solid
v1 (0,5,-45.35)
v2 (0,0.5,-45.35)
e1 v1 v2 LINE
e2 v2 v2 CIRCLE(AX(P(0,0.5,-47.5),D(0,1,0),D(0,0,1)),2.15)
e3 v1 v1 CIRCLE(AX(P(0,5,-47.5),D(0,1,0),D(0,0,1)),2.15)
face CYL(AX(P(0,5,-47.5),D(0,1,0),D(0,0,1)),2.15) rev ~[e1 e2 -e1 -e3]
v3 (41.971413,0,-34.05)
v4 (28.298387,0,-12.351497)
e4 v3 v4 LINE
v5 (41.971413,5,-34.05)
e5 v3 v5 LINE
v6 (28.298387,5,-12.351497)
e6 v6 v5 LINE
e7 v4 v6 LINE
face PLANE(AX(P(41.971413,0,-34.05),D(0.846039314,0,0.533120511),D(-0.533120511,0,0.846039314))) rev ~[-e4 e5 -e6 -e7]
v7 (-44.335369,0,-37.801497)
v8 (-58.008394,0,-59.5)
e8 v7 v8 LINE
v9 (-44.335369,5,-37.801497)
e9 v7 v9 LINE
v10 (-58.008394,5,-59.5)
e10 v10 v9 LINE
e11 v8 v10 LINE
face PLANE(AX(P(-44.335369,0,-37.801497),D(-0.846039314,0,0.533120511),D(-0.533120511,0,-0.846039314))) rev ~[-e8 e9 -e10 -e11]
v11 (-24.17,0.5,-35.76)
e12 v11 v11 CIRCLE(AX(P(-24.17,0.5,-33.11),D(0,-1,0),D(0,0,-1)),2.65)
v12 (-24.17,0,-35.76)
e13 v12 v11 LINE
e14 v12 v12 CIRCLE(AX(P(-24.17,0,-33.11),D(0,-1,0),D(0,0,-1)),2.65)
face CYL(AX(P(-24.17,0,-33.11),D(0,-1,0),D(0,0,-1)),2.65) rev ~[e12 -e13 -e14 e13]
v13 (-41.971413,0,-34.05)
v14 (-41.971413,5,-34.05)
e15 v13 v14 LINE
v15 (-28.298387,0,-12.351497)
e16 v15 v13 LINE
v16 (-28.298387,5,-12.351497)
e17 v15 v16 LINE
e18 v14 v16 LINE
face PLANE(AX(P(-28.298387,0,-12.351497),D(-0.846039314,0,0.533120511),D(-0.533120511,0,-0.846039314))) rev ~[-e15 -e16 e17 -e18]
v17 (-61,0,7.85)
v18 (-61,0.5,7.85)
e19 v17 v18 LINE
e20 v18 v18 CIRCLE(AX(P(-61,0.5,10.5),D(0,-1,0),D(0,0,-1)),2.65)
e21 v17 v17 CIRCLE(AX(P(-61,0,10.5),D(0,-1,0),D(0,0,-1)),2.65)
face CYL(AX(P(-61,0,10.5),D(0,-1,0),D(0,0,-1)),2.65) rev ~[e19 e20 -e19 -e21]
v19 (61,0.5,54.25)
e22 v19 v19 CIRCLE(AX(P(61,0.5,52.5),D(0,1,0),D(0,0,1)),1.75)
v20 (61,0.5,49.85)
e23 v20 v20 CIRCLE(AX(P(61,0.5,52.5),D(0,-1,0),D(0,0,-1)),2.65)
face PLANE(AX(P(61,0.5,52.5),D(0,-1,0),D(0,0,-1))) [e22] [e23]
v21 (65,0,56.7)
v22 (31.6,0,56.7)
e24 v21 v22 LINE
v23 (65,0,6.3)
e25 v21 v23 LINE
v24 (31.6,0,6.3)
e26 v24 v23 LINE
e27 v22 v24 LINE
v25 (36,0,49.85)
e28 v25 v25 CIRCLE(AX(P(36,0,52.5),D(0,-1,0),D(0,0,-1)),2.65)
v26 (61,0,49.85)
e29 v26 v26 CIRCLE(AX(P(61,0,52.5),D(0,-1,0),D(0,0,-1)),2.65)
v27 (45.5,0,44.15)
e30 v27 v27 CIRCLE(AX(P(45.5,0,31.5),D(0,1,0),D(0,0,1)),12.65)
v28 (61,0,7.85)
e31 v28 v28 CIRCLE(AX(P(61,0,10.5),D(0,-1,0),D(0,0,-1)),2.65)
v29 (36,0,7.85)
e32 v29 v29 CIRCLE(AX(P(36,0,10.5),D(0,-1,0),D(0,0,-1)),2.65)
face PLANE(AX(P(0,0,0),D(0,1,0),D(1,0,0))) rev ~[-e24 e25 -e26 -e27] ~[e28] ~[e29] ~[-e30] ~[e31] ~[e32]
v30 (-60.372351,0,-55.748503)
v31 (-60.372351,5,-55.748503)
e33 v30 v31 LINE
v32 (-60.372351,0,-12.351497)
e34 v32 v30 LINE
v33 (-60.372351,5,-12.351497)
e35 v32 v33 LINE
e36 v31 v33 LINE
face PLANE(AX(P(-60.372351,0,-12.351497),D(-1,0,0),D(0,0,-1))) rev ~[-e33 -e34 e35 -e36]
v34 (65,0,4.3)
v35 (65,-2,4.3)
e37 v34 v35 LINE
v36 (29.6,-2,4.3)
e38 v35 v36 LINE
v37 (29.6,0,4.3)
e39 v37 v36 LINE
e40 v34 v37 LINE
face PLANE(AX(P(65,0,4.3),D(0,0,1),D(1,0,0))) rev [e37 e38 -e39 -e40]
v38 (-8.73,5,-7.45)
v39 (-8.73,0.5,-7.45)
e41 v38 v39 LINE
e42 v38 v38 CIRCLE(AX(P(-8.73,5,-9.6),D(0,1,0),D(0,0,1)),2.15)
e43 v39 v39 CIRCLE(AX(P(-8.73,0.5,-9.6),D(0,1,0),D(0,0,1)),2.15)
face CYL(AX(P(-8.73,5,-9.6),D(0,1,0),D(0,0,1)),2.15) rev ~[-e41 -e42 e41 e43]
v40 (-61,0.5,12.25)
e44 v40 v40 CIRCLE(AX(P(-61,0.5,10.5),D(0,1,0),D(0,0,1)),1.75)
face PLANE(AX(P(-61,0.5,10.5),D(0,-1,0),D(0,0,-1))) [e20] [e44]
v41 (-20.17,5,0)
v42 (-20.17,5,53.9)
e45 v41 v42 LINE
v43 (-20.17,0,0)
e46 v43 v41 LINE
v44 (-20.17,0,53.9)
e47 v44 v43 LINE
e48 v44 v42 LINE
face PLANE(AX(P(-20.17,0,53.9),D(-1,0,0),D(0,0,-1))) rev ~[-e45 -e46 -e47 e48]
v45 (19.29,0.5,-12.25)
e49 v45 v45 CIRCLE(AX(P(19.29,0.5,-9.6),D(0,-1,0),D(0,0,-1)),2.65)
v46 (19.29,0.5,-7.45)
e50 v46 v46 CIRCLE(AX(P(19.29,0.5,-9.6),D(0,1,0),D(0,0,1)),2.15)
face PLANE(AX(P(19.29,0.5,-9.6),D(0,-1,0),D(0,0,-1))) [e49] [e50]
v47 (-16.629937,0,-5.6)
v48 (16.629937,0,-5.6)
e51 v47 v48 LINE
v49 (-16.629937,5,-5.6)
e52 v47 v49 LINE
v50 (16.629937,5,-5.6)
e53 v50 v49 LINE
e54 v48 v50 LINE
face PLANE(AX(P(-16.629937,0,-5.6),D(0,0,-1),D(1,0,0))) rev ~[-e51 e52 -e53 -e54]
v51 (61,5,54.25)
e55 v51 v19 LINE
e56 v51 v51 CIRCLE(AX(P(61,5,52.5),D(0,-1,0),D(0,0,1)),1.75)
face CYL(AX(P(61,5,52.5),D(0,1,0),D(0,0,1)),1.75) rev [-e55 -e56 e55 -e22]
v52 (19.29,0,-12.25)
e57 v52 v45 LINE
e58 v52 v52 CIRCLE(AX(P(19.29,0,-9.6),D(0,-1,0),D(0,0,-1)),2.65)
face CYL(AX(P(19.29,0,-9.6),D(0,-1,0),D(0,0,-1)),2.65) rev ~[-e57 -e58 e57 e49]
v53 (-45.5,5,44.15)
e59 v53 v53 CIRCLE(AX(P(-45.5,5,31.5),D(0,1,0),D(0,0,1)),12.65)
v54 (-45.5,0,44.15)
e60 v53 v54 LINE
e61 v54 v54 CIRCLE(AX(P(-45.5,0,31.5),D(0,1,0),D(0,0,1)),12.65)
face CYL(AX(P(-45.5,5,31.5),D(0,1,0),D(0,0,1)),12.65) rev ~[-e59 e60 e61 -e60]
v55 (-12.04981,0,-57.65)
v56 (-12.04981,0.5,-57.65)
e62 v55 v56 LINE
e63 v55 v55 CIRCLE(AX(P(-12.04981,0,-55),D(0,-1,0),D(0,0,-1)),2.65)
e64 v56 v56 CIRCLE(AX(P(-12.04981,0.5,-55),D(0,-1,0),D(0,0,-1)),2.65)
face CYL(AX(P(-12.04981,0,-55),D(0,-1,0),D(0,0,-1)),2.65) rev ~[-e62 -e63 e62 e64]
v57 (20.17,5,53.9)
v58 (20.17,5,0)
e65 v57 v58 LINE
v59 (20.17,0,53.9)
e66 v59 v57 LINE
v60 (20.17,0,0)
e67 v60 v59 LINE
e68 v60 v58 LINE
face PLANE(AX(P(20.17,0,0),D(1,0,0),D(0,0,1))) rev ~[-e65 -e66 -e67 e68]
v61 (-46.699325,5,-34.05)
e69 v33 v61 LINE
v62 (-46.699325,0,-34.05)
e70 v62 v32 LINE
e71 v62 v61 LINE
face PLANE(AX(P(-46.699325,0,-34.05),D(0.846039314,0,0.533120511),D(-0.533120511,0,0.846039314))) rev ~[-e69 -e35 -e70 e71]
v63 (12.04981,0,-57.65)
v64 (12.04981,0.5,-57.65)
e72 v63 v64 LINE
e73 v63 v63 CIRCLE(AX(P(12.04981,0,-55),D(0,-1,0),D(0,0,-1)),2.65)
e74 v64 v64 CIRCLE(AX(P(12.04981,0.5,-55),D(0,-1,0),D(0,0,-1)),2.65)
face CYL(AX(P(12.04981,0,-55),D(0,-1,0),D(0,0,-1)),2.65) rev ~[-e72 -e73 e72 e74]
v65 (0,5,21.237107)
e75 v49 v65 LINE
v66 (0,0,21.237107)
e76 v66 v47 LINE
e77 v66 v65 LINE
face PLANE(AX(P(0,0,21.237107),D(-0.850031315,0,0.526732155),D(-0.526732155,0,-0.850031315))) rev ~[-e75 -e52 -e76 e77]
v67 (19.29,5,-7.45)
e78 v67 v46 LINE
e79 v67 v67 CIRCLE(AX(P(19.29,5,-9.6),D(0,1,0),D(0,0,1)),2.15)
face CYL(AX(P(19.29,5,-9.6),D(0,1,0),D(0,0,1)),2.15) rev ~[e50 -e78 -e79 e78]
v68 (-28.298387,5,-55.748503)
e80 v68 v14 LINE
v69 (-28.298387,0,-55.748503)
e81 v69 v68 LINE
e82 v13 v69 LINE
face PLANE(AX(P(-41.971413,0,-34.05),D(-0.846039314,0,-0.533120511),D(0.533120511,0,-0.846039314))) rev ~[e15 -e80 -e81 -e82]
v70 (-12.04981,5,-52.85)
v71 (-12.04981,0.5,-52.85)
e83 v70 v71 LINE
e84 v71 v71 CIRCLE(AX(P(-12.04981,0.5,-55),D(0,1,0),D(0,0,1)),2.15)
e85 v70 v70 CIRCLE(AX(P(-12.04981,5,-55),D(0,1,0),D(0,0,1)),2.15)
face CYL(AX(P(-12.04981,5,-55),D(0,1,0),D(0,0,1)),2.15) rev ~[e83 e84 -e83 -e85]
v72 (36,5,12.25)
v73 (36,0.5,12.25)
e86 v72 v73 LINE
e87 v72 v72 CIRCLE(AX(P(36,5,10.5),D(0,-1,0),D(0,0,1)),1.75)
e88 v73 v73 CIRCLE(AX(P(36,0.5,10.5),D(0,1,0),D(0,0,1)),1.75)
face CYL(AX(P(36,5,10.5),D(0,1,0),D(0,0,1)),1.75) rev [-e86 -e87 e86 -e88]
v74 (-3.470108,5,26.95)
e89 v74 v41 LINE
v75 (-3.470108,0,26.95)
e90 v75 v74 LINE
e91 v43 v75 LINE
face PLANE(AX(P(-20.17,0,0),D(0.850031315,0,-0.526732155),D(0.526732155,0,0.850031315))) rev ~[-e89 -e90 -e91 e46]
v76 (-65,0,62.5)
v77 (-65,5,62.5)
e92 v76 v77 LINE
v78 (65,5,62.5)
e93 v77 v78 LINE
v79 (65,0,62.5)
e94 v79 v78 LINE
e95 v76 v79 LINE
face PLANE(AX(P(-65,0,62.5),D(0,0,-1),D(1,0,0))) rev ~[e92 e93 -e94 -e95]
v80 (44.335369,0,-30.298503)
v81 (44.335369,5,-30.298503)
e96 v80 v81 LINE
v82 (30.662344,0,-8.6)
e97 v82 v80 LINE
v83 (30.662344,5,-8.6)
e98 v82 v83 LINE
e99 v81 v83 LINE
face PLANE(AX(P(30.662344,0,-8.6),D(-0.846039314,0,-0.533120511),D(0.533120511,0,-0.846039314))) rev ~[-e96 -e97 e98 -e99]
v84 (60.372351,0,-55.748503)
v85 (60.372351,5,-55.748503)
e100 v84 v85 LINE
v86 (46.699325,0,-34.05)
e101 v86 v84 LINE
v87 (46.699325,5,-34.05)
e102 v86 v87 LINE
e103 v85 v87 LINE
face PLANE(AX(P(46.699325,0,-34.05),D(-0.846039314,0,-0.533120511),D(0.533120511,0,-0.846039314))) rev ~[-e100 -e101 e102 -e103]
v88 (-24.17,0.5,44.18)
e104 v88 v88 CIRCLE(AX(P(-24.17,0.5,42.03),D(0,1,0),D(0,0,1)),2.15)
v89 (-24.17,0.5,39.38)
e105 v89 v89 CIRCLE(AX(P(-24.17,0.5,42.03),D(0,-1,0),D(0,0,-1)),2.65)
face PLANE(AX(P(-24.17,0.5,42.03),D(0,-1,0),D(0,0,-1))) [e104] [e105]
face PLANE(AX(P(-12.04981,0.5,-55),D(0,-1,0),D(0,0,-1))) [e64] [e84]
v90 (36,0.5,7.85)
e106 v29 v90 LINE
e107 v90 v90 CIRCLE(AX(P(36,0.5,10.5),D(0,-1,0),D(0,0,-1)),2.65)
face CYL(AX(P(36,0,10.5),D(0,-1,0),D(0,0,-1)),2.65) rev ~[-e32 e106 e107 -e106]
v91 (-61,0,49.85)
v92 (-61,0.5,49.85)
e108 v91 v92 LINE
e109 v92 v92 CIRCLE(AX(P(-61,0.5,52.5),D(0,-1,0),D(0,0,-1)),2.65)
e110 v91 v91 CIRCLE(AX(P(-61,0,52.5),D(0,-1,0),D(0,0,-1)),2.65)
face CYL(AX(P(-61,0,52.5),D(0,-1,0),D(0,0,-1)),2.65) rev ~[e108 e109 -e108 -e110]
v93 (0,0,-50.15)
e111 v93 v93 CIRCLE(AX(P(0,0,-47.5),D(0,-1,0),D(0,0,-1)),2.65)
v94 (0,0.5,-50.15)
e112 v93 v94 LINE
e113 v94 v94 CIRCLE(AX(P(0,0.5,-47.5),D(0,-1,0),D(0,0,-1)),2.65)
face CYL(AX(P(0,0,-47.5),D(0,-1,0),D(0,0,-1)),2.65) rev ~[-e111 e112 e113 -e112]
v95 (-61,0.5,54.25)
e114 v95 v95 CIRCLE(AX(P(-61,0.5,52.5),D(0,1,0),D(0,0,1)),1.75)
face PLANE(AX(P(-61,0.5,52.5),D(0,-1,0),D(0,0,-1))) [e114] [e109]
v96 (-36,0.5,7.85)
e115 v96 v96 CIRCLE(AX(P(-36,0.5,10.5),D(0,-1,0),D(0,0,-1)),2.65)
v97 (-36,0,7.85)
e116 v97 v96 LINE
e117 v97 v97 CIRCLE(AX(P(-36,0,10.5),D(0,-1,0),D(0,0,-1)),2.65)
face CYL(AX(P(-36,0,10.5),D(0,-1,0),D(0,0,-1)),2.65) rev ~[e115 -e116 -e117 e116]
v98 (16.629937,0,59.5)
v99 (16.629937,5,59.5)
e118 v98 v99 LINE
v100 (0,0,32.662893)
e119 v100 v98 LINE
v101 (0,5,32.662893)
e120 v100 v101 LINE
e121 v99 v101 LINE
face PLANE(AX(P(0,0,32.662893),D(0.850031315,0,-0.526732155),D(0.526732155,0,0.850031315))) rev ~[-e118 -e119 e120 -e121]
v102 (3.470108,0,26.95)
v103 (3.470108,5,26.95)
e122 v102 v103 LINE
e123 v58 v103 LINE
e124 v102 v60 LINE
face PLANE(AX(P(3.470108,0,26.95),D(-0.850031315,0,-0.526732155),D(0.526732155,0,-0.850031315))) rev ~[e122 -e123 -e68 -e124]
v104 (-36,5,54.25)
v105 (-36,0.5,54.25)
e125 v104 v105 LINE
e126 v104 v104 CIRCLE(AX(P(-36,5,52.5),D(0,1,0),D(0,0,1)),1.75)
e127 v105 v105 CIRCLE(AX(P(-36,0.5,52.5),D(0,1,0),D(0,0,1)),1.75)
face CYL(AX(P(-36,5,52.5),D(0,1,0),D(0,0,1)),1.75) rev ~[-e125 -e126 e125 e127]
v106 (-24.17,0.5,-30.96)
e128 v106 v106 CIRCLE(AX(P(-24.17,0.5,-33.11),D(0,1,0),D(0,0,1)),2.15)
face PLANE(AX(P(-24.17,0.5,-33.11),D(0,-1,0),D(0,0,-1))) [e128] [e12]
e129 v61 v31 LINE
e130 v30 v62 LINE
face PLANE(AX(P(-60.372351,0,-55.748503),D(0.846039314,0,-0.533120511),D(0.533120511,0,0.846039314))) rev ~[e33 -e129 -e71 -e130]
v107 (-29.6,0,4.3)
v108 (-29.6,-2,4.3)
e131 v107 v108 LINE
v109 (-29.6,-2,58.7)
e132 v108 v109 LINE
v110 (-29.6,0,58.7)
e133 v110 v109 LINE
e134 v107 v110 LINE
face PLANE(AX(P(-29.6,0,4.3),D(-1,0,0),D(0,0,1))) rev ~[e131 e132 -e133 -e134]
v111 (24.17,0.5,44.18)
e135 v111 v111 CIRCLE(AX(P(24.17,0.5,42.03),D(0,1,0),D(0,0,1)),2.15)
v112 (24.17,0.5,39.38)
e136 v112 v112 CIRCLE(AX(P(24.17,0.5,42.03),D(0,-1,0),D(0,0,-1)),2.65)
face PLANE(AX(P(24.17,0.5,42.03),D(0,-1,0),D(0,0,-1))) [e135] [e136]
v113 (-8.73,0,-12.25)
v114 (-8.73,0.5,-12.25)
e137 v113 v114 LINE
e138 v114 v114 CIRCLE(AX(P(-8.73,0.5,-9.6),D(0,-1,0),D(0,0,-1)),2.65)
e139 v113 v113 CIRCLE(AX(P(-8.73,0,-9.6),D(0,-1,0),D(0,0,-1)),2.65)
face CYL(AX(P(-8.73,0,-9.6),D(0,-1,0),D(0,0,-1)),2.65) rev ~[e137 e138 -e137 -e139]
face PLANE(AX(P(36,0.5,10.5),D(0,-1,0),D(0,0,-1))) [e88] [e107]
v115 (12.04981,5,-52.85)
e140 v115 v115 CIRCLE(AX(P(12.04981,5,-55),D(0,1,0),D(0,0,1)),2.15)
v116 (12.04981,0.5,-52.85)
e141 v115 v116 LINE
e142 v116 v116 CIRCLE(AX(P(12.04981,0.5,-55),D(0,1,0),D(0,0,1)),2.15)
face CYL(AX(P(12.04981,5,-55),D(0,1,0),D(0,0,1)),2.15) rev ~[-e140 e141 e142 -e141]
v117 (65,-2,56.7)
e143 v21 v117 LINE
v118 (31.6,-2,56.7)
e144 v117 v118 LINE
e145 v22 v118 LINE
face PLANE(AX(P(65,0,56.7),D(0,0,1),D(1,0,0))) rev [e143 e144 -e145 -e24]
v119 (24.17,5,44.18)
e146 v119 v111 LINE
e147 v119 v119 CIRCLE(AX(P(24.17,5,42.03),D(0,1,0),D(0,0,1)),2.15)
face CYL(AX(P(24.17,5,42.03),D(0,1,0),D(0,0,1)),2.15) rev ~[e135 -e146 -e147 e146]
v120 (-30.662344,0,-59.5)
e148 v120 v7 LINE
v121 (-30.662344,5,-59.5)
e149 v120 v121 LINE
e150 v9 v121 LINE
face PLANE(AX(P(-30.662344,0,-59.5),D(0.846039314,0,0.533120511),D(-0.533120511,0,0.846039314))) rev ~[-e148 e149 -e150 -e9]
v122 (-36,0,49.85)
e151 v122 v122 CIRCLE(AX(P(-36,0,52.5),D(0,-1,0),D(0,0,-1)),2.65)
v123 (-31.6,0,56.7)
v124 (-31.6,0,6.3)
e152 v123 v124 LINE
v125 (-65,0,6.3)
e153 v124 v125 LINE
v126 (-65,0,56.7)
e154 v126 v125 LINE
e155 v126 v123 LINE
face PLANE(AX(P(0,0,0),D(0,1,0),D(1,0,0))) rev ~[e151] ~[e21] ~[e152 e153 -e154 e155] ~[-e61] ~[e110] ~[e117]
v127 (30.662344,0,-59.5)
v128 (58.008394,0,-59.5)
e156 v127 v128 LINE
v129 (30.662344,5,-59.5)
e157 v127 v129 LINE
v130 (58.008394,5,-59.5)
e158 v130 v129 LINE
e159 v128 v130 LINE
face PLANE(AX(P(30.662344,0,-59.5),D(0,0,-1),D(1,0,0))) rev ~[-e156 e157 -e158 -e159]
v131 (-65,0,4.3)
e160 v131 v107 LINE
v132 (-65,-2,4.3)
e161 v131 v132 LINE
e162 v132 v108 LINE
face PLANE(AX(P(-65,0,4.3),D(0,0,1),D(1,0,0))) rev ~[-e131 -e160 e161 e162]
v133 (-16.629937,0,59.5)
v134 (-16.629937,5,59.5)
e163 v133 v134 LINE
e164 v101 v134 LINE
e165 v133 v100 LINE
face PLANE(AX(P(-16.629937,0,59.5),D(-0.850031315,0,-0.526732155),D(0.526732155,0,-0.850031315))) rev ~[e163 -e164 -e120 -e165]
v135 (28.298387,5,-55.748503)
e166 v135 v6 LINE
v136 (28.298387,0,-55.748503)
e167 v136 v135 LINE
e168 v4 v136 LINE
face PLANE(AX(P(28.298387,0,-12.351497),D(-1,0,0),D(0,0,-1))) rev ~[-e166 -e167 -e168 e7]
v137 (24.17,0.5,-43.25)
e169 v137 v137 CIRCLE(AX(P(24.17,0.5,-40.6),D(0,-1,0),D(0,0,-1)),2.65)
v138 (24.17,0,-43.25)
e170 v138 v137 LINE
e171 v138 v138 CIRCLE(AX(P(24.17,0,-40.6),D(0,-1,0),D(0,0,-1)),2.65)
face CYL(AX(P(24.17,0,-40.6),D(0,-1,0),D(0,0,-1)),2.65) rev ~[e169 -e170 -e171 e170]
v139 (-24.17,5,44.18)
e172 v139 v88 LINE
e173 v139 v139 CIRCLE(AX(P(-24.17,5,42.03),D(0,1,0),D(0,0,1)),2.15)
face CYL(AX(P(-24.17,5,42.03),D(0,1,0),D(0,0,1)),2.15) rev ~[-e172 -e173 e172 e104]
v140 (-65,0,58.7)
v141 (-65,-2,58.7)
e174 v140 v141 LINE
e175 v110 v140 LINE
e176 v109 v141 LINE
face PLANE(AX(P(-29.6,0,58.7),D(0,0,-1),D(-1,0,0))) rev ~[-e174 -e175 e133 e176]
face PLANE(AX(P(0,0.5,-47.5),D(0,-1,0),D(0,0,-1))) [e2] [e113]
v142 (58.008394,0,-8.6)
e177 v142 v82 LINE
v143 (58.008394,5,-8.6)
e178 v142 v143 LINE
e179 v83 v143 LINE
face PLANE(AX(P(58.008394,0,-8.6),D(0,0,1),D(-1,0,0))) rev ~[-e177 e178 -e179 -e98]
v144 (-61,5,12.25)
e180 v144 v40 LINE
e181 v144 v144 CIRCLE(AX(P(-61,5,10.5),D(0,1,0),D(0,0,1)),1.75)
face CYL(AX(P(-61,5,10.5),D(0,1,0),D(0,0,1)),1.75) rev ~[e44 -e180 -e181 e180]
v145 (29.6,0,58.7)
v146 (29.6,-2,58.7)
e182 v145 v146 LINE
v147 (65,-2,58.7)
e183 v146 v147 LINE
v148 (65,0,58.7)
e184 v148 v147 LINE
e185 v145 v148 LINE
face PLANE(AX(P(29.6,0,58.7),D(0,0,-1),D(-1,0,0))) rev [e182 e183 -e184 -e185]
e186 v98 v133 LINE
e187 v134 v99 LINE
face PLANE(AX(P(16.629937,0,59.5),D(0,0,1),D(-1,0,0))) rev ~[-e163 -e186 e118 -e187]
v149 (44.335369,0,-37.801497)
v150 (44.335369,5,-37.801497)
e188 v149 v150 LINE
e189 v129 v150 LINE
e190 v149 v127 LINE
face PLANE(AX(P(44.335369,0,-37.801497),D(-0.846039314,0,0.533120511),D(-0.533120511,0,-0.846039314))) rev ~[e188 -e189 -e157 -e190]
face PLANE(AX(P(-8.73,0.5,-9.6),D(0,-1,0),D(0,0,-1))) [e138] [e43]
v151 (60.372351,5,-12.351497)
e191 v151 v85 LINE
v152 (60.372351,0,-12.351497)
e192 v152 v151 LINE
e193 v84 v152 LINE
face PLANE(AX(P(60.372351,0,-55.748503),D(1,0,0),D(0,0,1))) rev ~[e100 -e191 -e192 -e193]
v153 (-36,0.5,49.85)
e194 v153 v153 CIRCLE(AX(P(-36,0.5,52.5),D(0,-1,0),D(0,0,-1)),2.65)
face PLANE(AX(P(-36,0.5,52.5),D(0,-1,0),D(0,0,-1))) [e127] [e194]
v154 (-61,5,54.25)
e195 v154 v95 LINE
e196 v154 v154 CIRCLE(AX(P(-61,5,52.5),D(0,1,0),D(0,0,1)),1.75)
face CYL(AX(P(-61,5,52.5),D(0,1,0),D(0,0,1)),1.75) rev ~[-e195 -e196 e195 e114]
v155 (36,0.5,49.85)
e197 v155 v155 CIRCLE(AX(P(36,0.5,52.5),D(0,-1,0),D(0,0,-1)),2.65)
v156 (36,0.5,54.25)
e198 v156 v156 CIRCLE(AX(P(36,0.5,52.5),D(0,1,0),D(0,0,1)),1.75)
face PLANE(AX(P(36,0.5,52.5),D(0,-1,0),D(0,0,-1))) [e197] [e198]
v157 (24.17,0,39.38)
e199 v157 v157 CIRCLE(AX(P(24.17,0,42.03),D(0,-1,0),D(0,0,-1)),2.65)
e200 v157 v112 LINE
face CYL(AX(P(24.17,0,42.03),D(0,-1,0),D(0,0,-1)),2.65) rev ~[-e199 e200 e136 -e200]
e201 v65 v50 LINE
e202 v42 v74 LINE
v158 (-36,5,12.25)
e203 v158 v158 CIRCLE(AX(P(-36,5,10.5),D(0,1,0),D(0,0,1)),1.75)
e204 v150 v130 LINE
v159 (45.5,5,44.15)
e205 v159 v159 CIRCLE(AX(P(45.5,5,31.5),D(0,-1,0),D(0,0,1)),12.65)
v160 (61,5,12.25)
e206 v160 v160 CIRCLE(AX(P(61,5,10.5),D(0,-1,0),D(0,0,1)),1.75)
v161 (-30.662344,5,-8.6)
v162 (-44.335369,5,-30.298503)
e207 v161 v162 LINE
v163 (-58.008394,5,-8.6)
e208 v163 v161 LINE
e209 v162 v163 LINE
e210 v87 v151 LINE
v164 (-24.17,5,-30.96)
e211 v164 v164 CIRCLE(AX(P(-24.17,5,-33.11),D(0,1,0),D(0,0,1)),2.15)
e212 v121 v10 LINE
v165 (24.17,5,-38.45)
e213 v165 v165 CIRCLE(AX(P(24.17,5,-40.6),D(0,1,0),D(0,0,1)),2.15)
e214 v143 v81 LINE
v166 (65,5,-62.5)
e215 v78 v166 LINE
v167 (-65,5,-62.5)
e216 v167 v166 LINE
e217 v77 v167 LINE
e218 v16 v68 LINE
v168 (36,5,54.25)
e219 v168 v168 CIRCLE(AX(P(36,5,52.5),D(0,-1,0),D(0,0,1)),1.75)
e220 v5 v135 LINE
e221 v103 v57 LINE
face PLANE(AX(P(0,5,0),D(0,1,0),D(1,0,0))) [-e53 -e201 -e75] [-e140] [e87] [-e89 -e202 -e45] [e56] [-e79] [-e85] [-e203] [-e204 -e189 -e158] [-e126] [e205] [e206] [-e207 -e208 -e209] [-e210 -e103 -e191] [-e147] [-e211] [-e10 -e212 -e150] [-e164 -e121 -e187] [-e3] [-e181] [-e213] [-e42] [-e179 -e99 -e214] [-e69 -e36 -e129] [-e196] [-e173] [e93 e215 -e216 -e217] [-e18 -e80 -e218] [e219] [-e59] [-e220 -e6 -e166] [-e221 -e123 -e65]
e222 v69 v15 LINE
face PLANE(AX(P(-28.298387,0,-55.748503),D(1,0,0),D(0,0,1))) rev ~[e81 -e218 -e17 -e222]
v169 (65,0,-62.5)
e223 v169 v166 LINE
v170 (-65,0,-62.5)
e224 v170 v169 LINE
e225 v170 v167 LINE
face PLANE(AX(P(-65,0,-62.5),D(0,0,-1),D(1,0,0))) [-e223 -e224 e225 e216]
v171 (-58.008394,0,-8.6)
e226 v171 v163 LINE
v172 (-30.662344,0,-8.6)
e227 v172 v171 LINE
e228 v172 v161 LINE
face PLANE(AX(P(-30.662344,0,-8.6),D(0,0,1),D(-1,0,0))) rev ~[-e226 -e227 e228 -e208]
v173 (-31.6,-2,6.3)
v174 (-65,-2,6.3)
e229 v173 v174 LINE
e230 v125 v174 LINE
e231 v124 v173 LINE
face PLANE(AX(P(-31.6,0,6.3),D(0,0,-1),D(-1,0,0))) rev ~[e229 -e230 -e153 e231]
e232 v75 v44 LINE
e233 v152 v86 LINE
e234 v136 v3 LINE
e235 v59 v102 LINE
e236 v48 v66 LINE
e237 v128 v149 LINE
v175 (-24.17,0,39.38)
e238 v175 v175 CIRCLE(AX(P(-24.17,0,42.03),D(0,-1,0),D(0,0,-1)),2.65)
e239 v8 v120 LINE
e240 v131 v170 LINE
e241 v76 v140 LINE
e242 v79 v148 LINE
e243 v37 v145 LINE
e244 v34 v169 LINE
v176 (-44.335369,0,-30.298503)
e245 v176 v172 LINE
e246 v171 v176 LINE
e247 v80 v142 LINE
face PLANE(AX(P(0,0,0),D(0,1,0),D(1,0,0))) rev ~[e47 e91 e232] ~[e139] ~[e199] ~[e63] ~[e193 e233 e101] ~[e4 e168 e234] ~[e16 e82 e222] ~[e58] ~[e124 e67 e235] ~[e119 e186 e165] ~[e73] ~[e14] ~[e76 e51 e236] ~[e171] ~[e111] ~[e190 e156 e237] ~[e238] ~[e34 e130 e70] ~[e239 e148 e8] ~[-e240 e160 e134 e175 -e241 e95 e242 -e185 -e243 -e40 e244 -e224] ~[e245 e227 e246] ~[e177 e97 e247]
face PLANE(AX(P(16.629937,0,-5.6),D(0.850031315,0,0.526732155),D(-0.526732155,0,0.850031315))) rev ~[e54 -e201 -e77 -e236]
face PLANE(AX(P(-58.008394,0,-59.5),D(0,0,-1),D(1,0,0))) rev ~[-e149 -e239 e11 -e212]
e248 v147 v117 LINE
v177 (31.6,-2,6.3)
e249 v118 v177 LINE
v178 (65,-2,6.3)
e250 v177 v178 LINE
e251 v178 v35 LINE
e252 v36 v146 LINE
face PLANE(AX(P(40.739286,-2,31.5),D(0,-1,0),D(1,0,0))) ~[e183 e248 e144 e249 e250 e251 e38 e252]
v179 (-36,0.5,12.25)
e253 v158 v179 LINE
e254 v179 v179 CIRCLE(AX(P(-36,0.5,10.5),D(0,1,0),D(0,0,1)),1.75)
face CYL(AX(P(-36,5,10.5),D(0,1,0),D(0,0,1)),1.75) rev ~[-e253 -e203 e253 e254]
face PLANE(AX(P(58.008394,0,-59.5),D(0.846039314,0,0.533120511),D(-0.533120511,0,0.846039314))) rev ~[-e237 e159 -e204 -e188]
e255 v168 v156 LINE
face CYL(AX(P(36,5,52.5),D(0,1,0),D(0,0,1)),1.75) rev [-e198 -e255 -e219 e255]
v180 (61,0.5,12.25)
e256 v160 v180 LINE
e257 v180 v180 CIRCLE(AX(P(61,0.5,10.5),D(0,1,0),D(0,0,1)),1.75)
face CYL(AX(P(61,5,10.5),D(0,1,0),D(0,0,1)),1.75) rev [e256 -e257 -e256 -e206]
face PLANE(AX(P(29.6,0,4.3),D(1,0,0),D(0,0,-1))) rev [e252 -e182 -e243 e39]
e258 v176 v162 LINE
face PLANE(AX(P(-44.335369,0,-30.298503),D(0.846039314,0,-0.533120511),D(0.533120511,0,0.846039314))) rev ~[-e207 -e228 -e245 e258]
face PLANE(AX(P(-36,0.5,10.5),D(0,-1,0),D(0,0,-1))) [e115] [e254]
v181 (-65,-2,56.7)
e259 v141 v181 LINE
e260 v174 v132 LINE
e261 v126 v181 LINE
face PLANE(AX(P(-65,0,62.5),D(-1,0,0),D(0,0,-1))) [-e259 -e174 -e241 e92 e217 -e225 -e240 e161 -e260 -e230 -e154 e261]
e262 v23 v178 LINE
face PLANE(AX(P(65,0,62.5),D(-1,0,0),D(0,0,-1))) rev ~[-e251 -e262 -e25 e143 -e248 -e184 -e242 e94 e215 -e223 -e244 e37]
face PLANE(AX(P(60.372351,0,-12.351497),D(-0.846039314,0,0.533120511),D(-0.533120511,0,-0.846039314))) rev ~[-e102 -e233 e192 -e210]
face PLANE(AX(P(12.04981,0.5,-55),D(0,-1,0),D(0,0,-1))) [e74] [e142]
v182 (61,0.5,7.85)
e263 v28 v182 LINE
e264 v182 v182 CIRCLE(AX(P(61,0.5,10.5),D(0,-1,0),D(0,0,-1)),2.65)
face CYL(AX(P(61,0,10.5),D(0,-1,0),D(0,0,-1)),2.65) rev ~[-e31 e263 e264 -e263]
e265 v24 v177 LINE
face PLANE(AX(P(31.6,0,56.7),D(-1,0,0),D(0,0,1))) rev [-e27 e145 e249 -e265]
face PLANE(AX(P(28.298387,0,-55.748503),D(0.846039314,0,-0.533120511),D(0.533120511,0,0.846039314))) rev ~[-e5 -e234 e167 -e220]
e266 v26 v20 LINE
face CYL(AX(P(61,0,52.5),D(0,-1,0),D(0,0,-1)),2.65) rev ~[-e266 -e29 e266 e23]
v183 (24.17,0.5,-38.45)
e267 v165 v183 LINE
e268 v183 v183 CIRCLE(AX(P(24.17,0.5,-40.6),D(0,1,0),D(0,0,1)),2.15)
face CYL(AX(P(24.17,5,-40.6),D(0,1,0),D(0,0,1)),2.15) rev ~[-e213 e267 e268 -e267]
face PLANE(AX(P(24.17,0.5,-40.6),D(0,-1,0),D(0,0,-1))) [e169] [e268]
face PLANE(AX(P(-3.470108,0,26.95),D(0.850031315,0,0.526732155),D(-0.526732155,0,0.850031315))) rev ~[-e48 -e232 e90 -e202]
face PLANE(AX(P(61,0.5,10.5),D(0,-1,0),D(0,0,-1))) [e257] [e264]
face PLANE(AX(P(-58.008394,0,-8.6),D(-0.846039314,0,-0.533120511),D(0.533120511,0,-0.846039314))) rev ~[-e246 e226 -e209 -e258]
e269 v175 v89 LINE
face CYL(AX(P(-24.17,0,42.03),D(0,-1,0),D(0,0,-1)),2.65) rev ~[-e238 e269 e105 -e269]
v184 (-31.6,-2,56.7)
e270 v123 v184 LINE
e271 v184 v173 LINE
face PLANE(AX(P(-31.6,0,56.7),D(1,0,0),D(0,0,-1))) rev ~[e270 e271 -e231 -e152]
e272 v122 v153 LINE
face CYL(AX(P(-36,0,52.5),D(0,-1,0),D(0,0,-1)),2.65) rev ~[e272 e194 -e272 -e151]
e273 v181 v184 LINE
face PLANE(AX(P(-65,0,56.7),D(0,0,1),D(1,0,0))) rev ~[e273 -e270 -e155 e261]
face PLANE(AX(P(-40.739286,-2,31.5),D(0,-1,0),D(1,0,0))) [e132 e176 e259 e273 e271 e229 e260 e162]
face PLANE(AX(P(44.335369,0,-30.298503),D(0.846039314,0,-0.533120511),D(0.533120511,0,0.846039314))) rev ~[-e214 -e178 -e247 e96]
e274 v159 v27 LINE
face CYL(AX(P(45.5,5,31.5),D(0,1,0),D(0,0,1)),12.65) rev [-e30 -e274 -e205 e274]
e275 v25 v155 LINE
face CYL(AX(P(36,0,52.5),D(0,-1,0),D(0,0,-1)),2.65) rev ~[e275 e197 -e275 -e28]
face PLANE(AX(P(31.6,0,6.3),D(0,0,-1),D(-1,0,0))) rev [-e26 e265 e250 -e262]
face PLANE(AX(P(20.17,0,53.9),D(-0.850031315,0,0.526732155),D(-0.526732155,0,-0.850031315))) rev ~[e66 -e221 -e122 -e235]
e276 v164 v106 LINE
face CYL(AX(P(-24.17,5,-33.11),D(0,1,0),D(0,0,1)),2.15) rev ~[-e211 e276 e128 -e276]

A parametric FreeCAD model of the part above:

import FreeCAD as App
import Part
import Sketcher

doc = App.newDocument("Part")
body = doc.addObject("PartDesign::Body", "Body")

sketch1 = doc.addObject("Sketcher::SketchObject", "Sketch")
body.addObject(sketch1)
sketch1.AttachmentSupport = (doc.XZ_Plane, [""])
sketch1.MapMode = "FlatFace"
sketch1.addGeometry([
    Part.LineSegment(App.Vector(-65, -62, 0), App.Vector(-65, 62, 0)),
    Part.LineSegment(App.Vector(-65, 62, 0), App.Vector(65, 62, 0)),
    Part.LineSegment(App.Vector(65, 62, 0), App.Vector(65, -62, 0)),
    Part.LineSegment(App.Vector(65, -62, 0), App.Vector(-65, -62, 0)),
], False)
sketch1.addConstraint([
    Sketcher.Constraint("Coincident", 0, 2, 1, 1),
    Sketcher.Constraint("Coincident", 1, 2, 2, 1),
    Sketcher.Constraint("Coincident", 2, 2, 3, 1),
    Sketcher.Constraint("Coincident", 3, 2, 0, 1),
    Sketcher.Constraint("Vertical", 0),
    Sketcher.Constraint("Horizontal", 1),
    Sketcher.Constraint("Vertical", 2),
    Sketcher.Constraint("Horizontal", 3),
    Sketcher.Constraint("Symmetric", 0, 2, 2, 2, -1, 1),
    Sketcher.Constraint("DistanceX", 1, 1, 1, 2, 130.0),
    Sketcher.Constraint("DistanceY", 0, 1, 0, 2, 125.0),
])
pad1 = doc.addObject("PartDesign::Pad", "Pad")
body.addObject(pad1)
pad1.Profile = sketch1
pad1.Length = 5
pad1.Reversed = True

sketch2 = doc.addObject("Sketcher::SketchObject", "Sketch001")
body.addObject(sketch2)
sketch2.AttachmentSupport = (doc.XZ_Plane, [""])
sketch2.MapMode = "FlatFace"
sketch2.AttachmentOffset = App.Placement(App.Vector(0, 0, -5), App.Rotation())
sketch2.addGeometry([
    Part.Circle(App.Vector(-61, 52.5, 0), App.Vector(0, 0, 1), 1.8),
    Part.Circle(App.Vector(-36, 52.5, 0), App.Vector(0, 0, 1), 1.8),
    Part.Circle(App.Vector(-36, 10.5, 0), App.Vector(0, 0, 1), 1.8),
    Part.Circle(App.Vector(-61, 10.5, 0), App.Vector(0, 0, 1), 1.8),
    Part.Circle(App.Vector(-45.5, 31.5, 0), App.Vector(0, 0, 1), 12.7),
], False)
sketch2.addConstraint([
    Sketcher.Constraint("Equal", 0, 1),
    Sketcher.Constraint("Equal", 1, 2),
    Sketcher.Constraint("Equal", 2, 3),
    Sketcher.Constraint("Horizontal", 0, 3, 1, 3),
    Sketcher.Constraint("Horizontal", 2, 3, 3, 3),
    Sketcher.Constraint("Vertical", 1, 3, 2, 3),
    Sketcher.Constraint("Vertical", 0, 3, 3, 3),
    Sketcher.Constraint("Diameter", 0, 3.5),
    Sketcher.Constraint("Diameter", 4, 25.3),
    Sketcher.Constraint("DistanceX", 0, 3, -1, 1, 61.0),
    Sketcher.Constraint("DistanceX", 1, 3, -1, 1, 36.0),
    Sketcher.Constraint("DistanceY", 2, 3, 1, 3, 42.0),
    Sketcher.Constraint("DistanceY", 4, 3, 1, 3, 21.0),
    Sketcher.Constraint("DistanceY", -1, 1, 0, 3, 52.5),
    Sketcher.Constraint("DistanceX", 4, 3, -1, 1, 45.5),
])
pocket1 = doc.addObject("PartDesign::Pocket", "Pocket")
body.addObject(pocket1)
pocket1.Profile = sketch2
pocket1.Length = 10
pocket1.Reversed = True
doc.recompute()

mirrored = doc.addObject("PartDesign::Mirrored", "Mirrored")
body.addObject(mirrored)
mirrored.Originals = [pocket1]
mirrored.MirrorPlane = (doc.YZ_Plane, [""])
body.Tip = mirrored

sketch3 = doc.addObject("Sketcher::SketchObject", "Sketch002")
body.addObject(sketch3)
sketch3.AttachmentSupport = (doc.XZ_Plane, [""])
sketch3.MapMode = "FlatFace"
sketch3.AttachmentOffset = App.Placement(App.Vector(0, 0, -5), App.Rotation())
sketch3.addGeometry([
    Part.Circle(App.Vector(-24.2, 42, 0), App.Vector(0, 0, 1), 2.1),
    Part.Circle(App.Vector(24.2, 42, 0), App.Vector(0, 0, 1), 2.1),
    Part.Circle(App.Vector(-8.7, -9.6, 0), App.Vector(0, 0, 1), 2.1),
    Part.Circle(App.Vector(19.3, -9.6, 0), App.Vector(0, 0, 1), 2.1),
    Part.Circle(App.Vector(-24.2, -33.1, 0), App.Vector(0, 0, 1), 2.1),
    Part.Circle(App.Vector(24.2, -40.6, 0), App.Vector(0, 0, 1), 2.1),
], False)
sketch3.addConstraint([
    Sketcher.Constraint("Equal", 0, 1),
    Sketcher.Constraint("Equal", 1, 2),
    Sketcher.Constraint("Equal", 2, 3),
    Sketcher.Constraint("Equal", 3, 4),
    Sketcher.Constraint("Equal", 4, 5),
    Sketcher.Constraint("Symmetric", 0, 3, 1, 3, -2),
    Sketcher.Constraint("Horizontal", 2, 3, 3, 3),
    Sketcher.Constraint("Vertical", 0, 3, 4, 3),
    Sketcher.Constraint("Vertical", 1, 3, 5, 3),
    Sketcher.Constraint("Diameter", 0, 4.3),
    Sketcher.Constraint("DistanceY", 5, 3, 3, 3, 31.0),
    Sketcher.Constraint("DistanceY", 2, 3, -1, 1, 9.6),
    Sketcher.Constraint("DistanceX", 2, 3, 1, 3, 32.9),
    Sketcher.Constraint("DistanceX", 0, 3, -1, 1, 24.17),
    Sketcher.Constraint("DistanceY", -1, 1, 0, 3, 42.03),
    Sketcher.Constraint("DistanceX", -1, 1, 3, 3, 19.29),
    Sketcher.Constraint("DistanceY", 4, 3, -1, 1, 33.11),
])
pocket2 = doc.addObject("PartDesign::Pocket", "Pocket001")
body.addObject(pocket2)
pocket2.Profile = sketch3
pocket2.Length = 10
pocket2.Reversed = True

sketch4 = doc.addObject("Sketcher::SketchObject", "Sketch003")
body.addObject(sketch4)
sketch4.AttachmentSupport = (doc.XZ_Plane, [""])
sketch4.MapMode = "FlatFace"
sketch4.AttachmentOffset = App.Placement(App.Vector(0, 0, -5), App.Rotation())
sketch4.addGeometry([
    Part.Circle(App.Vector(0, -47.5, 0), App.Vector(0, 0, 1), 2.1),
    Part.Circle(App.Vector(12, -55, 0), App.Vector(0, 0, 1), 2.1),
    Part.Circle(App.Vector(-12, -55, 0), App.Vector(0, 0, 1), 2.1),
], False)
sketch4.addConstraint([
    Sketcher.Constraint("Equal", 0, 1),
    Sketcher.Constraint("Equal", 1, 2),
    Sketcher.Constraint("Symmetric", 1, 3, 2, 3, -2),
    Sketcher.Constraint("PointOnObject", 0, 3, -2),
    Sketcher.Constraint("Diameter", 0, 4.3),
    Sketcher.Constraint("DistanceY", 1, 3, -1, 1, 55.0),
    Sketcher.Constraint("DistanceY", 0, 3, -1, 1, 47.5),
    Sketcher.Constraint("DistanceX", -1, 1, 1, 3, 12.04981),
])
pocket3 = doc.addObject("PartDesign::Pocket", "Pocket002")
body.addObject(pocket3)
pocket3.Profile = sketch4
pocket3.Length = 10
pocket3.Reversed = True

sketch5 = doc.addObject("Sketcher::SketchObject", "Sketch004")
body.addObject(sketch5)
sketch5.AttachmentSupport = (doc.XZ_Plane, [""])
sketch5.MapMode = "FlatFace"
sketch5.addGeometry([
    Part.LineSegment(App.Vector(-65, 58.7, 0), App.Vector(-65, 56.7, 0)),
    Part.LineSegment(App.Vector(-65, 56.7, 0), App.Vector(-31.6, 56.7, 0)),
    Part.LineSegment(App.Vector(-31.6, 56.7, 0), App.Vector(-31.6, 6.3, 0)),
    Part.LineSegment(App.Vector(-31.6, 6.3, 0), App.Vector(-65, 6.3, 0)),
    Part.LineSegment(App.Vector(-65, 6.3, 0), App.Vector(-65, 4.3, 0)),
    Part.LineSegment(App.Vector(-65, 4.3, 0), App.Vector(-29.6, 4.3, 0)),
    Part.LineSegment(App.Vector(-29.6, 4.3, 0), App.Vector(-29.6, 58.7, 0)),
    Part.LineSegment(App.Vector(-29.6, 58.7, 0), App.Vector(-65, 58.7, 0)),
], False)
sketch5.addConstraint([
    Sketcher.Constraint("Coincident", 0, 2, 1, 1),
    Sketcher.Constraint("Coincident", 1, 2, 2, 1),
    Sketcher.Constraint("Coincident", 2, 2, 3, 1),
    Sketcher.Constraint("Coincident", 3, 2, 4, 1),
    Sketcher.Constraint("Coincident", 4, 2, 5, 1),
    Sketcher.Constraint("Coincident", 5, 2, 6, 1),
    Sketcher.Constraint("Coincident", 6, 2, 7, 1),
    Sketcher.Constraint("Coincident", 7, 2, 0, 1),
    Sketcher.Constraint("Vertical", 0),
    Sketcher.Constraint("Horizontal", 1),
    Sketcher.Constraint("Vertical", 2),
    Sketcher.Constraint("Horizontal", 3),
    Sketcher.Constraint("Vertical", 4),
    Sketcher.Constraint("Horizontal", 5),
    Sketcher.Constraint("Vertical", 6),
    Sketcher.Constraint("Horizontal", 7),
    Sketcher.Constraint("Vertical", 0, 2, 3, 2),
    Sketcher.Constraint("Equal", 0, 4),
    Sketcher.Constraint("DistanceY", 0, 2, 0, 1, 2.0),
    Sketcher.Constraint("DistanceX", 1, 1, 1, 2, 33.4),
    Sketcher.Constraint("DistanceX", 5, 1, 5, 2, 35.4),
    Sketcher.Constraint("DistanceY", 2, 2, 2, 1, 50.4),
    Sketcher.Constraint("DistanceX", 0, 2, -1, 1, 65.0),
    Sketcher.Constraint("DistanceY", -1, 1, 0, 2, 56.7),
])
pad2 = doc.addObject("PartDesign::Pad", "Pad001")
body.addObject(pad2)
pad2.Profile = sketch5
pad2.Length = 2
doc.recompute()

mirrored2 = doc.addObject("PartDesign::Mirrored", "Mirrored001")
body.addObject(mirrored2)
mirrored2.Originals = [pad2]
mirrored2.MirrorPlane = (doc.YZ_Plane, [""])
body.Tip = mirrored2

sketch6 = doc.addObject("Sketcher::SketchObject", "Sketch005")
body.addObject(sketch6)
sketch6.AttachmentSupport = (doc.XZ_Plane, [""])
sketch6.MapMode = "FlatFace"
sketch6.addGeometry([
    Part.Circle(App.Vector(-12, -55, 0), App.Vector(0, 0, 1), 2.6),
    Part.Circle(App.Vector(12, -55, 0), App.Vector(0, 0, 1), 2.6),
    Part.Circle(App.Vector(0, -47.5, 0), App.Vector(0, 0, 1), 2.6),
    Part.Circle(App.Vector(24.2, -40.6, 0), App.Vector(0, 0, 1), 2.6),
    Part.Circle(App.Vector(-24.2, -33.1, 0), App.Vector(0, 0, 1), 2.6),
    Part.Circle(App.Vector(-8.7, -9.6, 0), App.Vector(0, 0, 1), 2.6),
    Part.Circle(App.Vector(19.3, -9.6, 0), App.Vector(0, 0, 1), 2.6),
    Part.Circle(App.Vector(-61, 10.5, 0), App.Vector(0, 0, 1), 2.6),
    Part.Circle(App.Vector(-61, 52.5, 0), App.Vector(0, 0, 1), 2.6),
    Part.Circle(App.Vector(-36, 52.5, 0), App.Vector(0, 0, 1), 2.6),
    Part.Circle(App.Vector(-36, 10.5, 0), App.Vector(0, 0, 1), 2.6),
    Part.Circle(App.Vector(-24.2, 42, 0), App.Vector(0, 0, 1), 2.6),
    Part.Circle(App.Vector(24.2, 42, 0), App.Vector(0, 0, 1), 2.6),
    Part.Circle(App.Vector(36, 52.5, 0), App.Vector(0, 0, 1), 2.6),
    Part.Circle(App.Vector(36, 10.5, 0), App.Vector(0, 0, 1), 2.6),
    Part.Circle(App.Vector(61, 10.5, 0), App.Vector(0, 0, 1), 2.6),
    Part.Circle(App.Vector(61, 52.5, 0), App.Vector(0, 0, 1), 2.6),
], False)
sketch6.addConstraint([
    Sketcher.Constraint("Equal", 0, 1),
    Sketcher.Constraint("Equal", 1, 2),
    Sketcher.Constraint("Equal", 2, 3),
    Sketcher.Constraint("Equal", 3, 4),
    Sketcher.Constraint("Equal", 4, 5),
    Sketcher.Constraint("Equal", 5, 6),
    Sketcher.Constraint("Equal", 6, 7),
    Sketcher.Constraint("Equal", 7, 8),
    Sketcher.Constraint("Equal", 8, 9),
    Sketcher.Constraint("Equal", 9, 10),
    Sketcher.Constraint("Equal", 10, 11),
    Sketcher.Constraint("Equal", 11, 12),
    Sketcher.Constraint("Equal", 12, 13),
    Sketcher.Constraint("Equal", 13, 14),
    Sketcher.Constraint("Equal", 14, 15),
    Sketcher.Constraint("Equal", 15, 16),
    Sketcher.Constraint("Symmetric", 0, 3, 1, 3, -2),
    Sketcher.Constraint("Symmetric", 11, 3, 12, 3, -2),
    Sketcher.Constraint("Symmetric", 9, 3, 13, 3, -2),
    Sketcher.Constraint("Symmetric", 10, 3, 14, 3, -2),
    Sketcher.Constraint("Symmetric", 7, 3, 15, 3, -2),
    Sketcher.Constraint("Symmetric", 8, 3, 16, 3, -2),
    Sketcher.Constraint("PointOnObject", 2, 3, -2),
    Sketcher.Constraint("Horizontal", 5, 3, 6, 3),
    Sketcher.Constraint("Horizontal", 8, 3, 9, 3),
    Sketcher.Constraint("Horizontal", 7, 3, 10, 3),
    Sketcher.Constraint("Vertical", 7, 3, 8, 3),
    Sketcher.Constraint("Vertical", 9, 3, 10, 3),
    Sketcher.Constraint("Vertical", 4, 3, 11, 3),
    Sketcher.Constraint("Vertical", 3, 3, 12, 3),
    Sketcher.Constraint("Diameter", 0, 5.3),
    Sketcher.Constraint("DistanceY", 0, 3, -1, 1, 55.0),
    Sketcher.Constraint("DistanceX", 7, 3, -1, 1, 61.0),
    Sketcher.Constraint("DistanceX", 9, 3, -1, 1, 36.0),
    Sketcher.Constraint("DistanceY", 3, 3, 5, 3, 31.0),
    Sketcher.Constraint("DistanceY", 2, 3, 7, 3, 58.0),
    Sketcher.Constraint("DistanceY", 7, 3, 8, 3, 42.0),
    Sketcher.Constraint("DistanceY", 2, 3, -1, 1, 47.5),
    Sketcher.Constraint("DistanceY", 3, 3, -1, 1, 40.6),
    Sketcher.Constraint("DistanceX", 5, 3, 3, 3, 32.9),
    Sketcher.Constraint("DistanceX", -1, 1, 3, 3, 24.17),
    Sketcher.Constraint("DistanceY", 4, 3, -1, 1, 33.11),
    Sketcher.Constraint("DistanceX", -1, 1, 6, 3, 19.29),
    Sketcher.Constraint("DistanceY", -1, 1, 11, 3, 42.03),
    Sketcher.Constraint("DistanceX", 0, 3, -1, 1, 12.04981),
])
pocket4 = doc.addObject("PartDesign::Pocket", "Pocket003")
body.addObject(pocket4)
pocket4.Profile = sketch6
pocket4.Length = 0.5

sketch7 = doc.addObject("Sketcher::SketchObject", "Sketch006")
body.addObject(sketch7)
sketch7.AttachmentSupport = (doc.XZ_Plane, [""])
sketch7.MapMode = "FlatFace"
sketch7.addGeometry([
    Part.LineSegment(App.Vector(-3, 27, 0), App.Vector(-20, 54, 0)),
    Part.LineSegment(App.Vector(-20, 54, 0), App.Vector(-20, 0, 0)),
    Part.LineSegment(App.Vector(-20, 0, 0), App.Vector(-3, 27, 0)),
    Part.LineSegment(App.Vector(17, 60, 0), App.Vector(-17, 60, 0)),
    Part.LineSegment(App.Vector(-17, 60, 0), App.Vector(0, 33, 0)),
    Part.LineSegment(App.Vector(0, 33, 0), App.Vector(17, 60, 0)),
    Part.LineSegment(App.Vector(20, 0, 0), App.Vector(20, 54, 0)),
    Part.LineSegment(App.Vector(20, 54, 0), App.Vector(3, 27, 0)),
    Part.LineSegment(App.Vector(3, 27, 0), App.Vector(20, 0, 0)),
    Part.LineSegment(App.Vector(0, 21, 0), App.Vector(-17, -6, 0)),
    Part.LineSegment(App.Vector(-17, -6, 0), App.Vector(17, -6, 0)),
    Part.LineSegment(App.Vector(17, -6, 0), App.Vector(0, 21, 0)),
], False)
sketch7.addConstraint([
    Sketcher.Constraint("Coincident", 0, 2, 1, 1),
    Sketcher.Constraint("Coincident", 1, 2, 2, 1),
    Sketcher.Constraint("Coincident", 2, 2, 0, 1),
    Sketcher.Constraint("Coincident", 3, 2, 4, 1),
    Sketcher.Constraint("Coincident", 4, 2, 5, 1),
    Sketcher.Constraint("Coincident", 5, 2, 3, 1),
    Sketcher.Constraint("Coincident", 6, 2, 7, 1),
    Sketcher.Constraint("Coincident", 7, 2, 8, 1),
    Sketcher.Constraint("Coincident", 8, 2, 6, 1),
    Sketcher.Constraint("Coincident", 9, 2, 10, 1),
    Sketcher.Constraint("Coincident", 10, 2, 11, 1),
    Sketcher.Constraint("Coincident", 11, 2, 9, 1),
    Sketcher.Constraint("Vertical", 1),
    Sketcher.Constraint("Horizontal", 3),
    Sketcher.Constraint("Vertical", 6),
    Sketcher.Constraint("Horizontal", 10),
    Sketcher.Constraint("Symmetric", 1, 2, 8, 2, -1, 1),
    Sketcher.Constraint("Symmetric", 2, 2, 7, 2, -2),
    Sketcher.Constraint("PointOnObject", 1, 2, -1),
    Sketcher.Constraint("PointOnObject", 4, 2, -2),
    Sketcher.Constraint("PointOnObject", 11, 2, -2),
    Sketcher.Constraint("Parallel", 0, 4),
    Sketcher.Constraint("Parallel", 2, 5),
    Sketcher.Constraint("Parallel", 5, 7),
    Sketcher.Constraint("Parallel", 4, 8),
    Sketcher.Constraint("Parallel", 7, 9),
    Sketcher.Constraint("Parallel", 8, 11),
    Sketcher.Constraint("Vertical", 3, 2, 9, 2),
    Sketcher.Constraint("DistanceY", 1, 2, 1, 1, 53.9),
    Sketcher.Constraint("DistanceY", -1, 1, 3, 2, 59.5),
    Sketcher.Constraint("DistanceY", 9, 2, -1, 1, 5.6),
    Sketcher.Constraint("DistanceX", 0, 2, -1, 1, 20.17),
    Sketcher.Constraint("DistanceX", 3, 2, 3, 1, 33.259874),
    Sketcher.Constraint("DistanceX", 3, 2, 2, 2, 13.15983),
])
pocket5 = doc.addObject("PartDesign::Pocket", "Pocket004")
body.addObject(pocket5)
pocket5.Profile = sketch7
pocket5.Type = "ThroughAll"

sketch8 = doc.addObject("Sketcher::SketchObject", "Sketch007")
body.addObject(sketch8)
sketch8.AttachmentSupport = (doc.XZ_Plane, [""])
sketch8.MapMode = "FlatFace"
sketch8.addGeometry([
    Part.LineSegment(App.Vector(-47, -34, 0), App.Vector(-60, -12, 0)),
    Part.LineSegment(App.Vector(-60, -12, 0), App.Vector(-60, -56, 0)),
    Part.LineSegment(App.Vector(-60, -56, 0), App.Vector(-47, -34, 0)),
    Part.LineSegment(App.Vector(-31, -9, 0), App.Vector(-58, -9, 0)),
    Part.LineSegment(App.Vector(-58, -9, 0), App.Vector(-44, -30, 0)),
    Part.LineSegment(App.Vector(-44, -30, 0), App.Vector(-31, -9, 0)),
    Part.LineSegment(App.Vector(-28, -56, 0), App.Vector(-28, -12, 0)),
    Part.LineSegment(App.Vector(-28, -12, 0), App.Vector(-42, -34, 0)),
    Part.LineSegment(App.Vector(-42, -34, 0), App.Vector(-28, -56, 0)),
    Part.LineSegment(App.Vector(-44, -38, 0), App.Vector(-58, -60, 0)),
    Part.LineSegment(App.Vector(-58, -60, 0), App.Vector(-31, -60, 0)),
    Part.LineSegment(App.Vector(-31, -60, 0), App.Vector(-44, -38, 0)),
    Part.LineSegment(App.Vector(42, -34, 0), App.Vector(28, -12, 0)),
    Part.LineSegment(App.Vector(28, -12, 0), App.Vector(28, -56, 0)),
    Part.LineSegment(App.Vector(28, -56, 0), App.Vector(42, -34, 0)),
    Part.LineSegment(App.Vector(44, -30, 0), App.Vector(58, -9, 0)),
    Part.LineSegment(App.Vector(58, -9, 0), App.Vector(31, -9, 0)),
    Part.LineSegment(App.Vector(31, -9, 0), App.Vector(44, -30, 0)),
    Part.LineSegment(App.Vector(60, -12, 0), App.Vector(47, -34, 0)),
    Part.LineSegment(App.Vector(47, -34, 0), App.Vector(60, -56, 0)),
    Part.LineSegment(App.Vector(60, -56, 0), App.Vector(60, -12, 0)),
    Part.LineSegment(App.Vector(31, -60, 0), App.Vector(58, -60, 0)),
    Part.LineSegment(App.Vector(58, -60, 0), App.Vector(44, -38, 0)),
    Part.LineSegment(App.Vector(44, -38, 0), App.Vector(31, -60, 0)),
], False)
sketch8.addConstraint([
    Sketcher.Constraint("Coincident", 0, 2, 1, 1),
    Sketcher.Constraint("Coincident", 1, 2, 2, 1),
    Sketcher.Constraint("Coincident", 2, 2, 0, 1),
    Sketcher.Constraint("Coincident", 3, 2, 4, 1),
    Sketcher.Constraint("Coincident", 4, 2, 5, 1),
    Sketcher.Constraint("Coincident", 5, 2, 3, 1),
    Sketcher.Constraint("Coincident", 6, 2, 7, 1),
    Sketcher.Constraint("Coincident", 7, 2, 8, 1),
    Sketcher.Constraint("Coincident", 8, 2, 6, 1),
    Sketcher.Constraint("Coincident", 9, 2, 10, 1),
    Sketcher.Constraint("Coincident", 10, 2, 11, 1),
    Sketcher.Constraint("Coincident", 11, 2, 9, 1),
    Sketcher.Constraint("Coincident", 12, 2, 13, 1),
    Sketcher.Constraint("Coincident", 13, 2, 14, 1),
    Sketcher.Constraint("Coincident", 14, 2, 12, 1),
    Sketcher.Constraint("Coincident", 15, 2, 16, 1),
    Sketcher.Constraint("Coincident", 16, 2, 17, 1),
    Sketcher.Constraint("Coincident", 17, 2, 15, 1),
    Sketcher.Constraint("Coincident", 18, 2, 19, 1),
    Sketcher.Constraint("Coincident", 19, 2, 20, 1),
    Sketcher.Constraint("Coincident", 20, 2, 18, 1),
    Sketcher.Constraint("Coincident", 21, 2, 22, 1),
    Sketcher.Constraint("Coincident", 22, 2, 23, 1),
    Sketcher.Constraint("Coincident", 23, 2, 21, 1),
    Sketcher.Constraint("Vertical", 1),
    Sketcher.Constraint("Horizontal", 3),
    Sketcher.Constraint("Vertical", 6),
    Sketcher.Constraint("Horizontal", 10),
    Sketcher.Constraint("Vertical", 13),
    Sketcher.Constraint("Horizontal", 16),
    Sketcher.Constraint("Vertical", 20),
    Sketcher.Constraint("Horizontal", 21),
    Sketcher.Constraint("Symmetric", 6, 2, 12, 2, -2),
    Sketcher.Constraint("Symmetric", 7, 2, 14, 2, -2),
    Sketcher.Constraint("Symmetric", 3, 2, 15, 2, -2),
    Sketcher.Constraint("Symmetric", 4, 2, 17, 2, -2),
    Sketcher.Constraint("Symmetric", 2, 2, 18, 2, -2),
    Sketcher.Constraint("Symmetric", 1, 2, 19, 2, -2),
    Sketcher.Constraint("Symmetric", 9, 2, 21, 2, -2),
    Sketcher.Constraint("Symmetric", 11, 2, 22, 2, -2),
    Sketcher.Constraint("Parallel", 0, 4),
    Sketcher.Constraint("Parallel", 2, 5),
    Sketcher.Constraint("Parallel", 5, 7),
    Sketcher.Constraint("Parallel", 4, 8),
    Sketcher.Constraint("Parallel", 7, 9),
    Sketcher.Constraint("Parallel", 8, 11),
    Sketcher.Constraint("Parallel", 11, 12),
    Sketcher.Constraint("Parallel", 9, 14),
    Sketcher.Constraint("Parallel", 12, 17),
    Sketcher.Constraint("Parallel", 15, 18),
    Sketcher.Constraint("Parallel", 18, 23),
    Sketcher.Constraint("Horizontal", 0, 2, 6, 2),
    Sketcher.Constraint("Horizontal", 2, 2, 7, 2),
    Sketcher.Constraint("Vertical", 3, 2, 9, 2),
    Sketcher.Constraint("Vertical", 5, 2, 10, 2),
    Sketcher.Constraint("Equal", 2, 4),
    Sketcher.Constraint("DistanceY", 3, 2, -1, 1, 8.6),
    Sketcher.Constraint("DistanceY", 9, 2, -1, 1, 59.5),
    Sketcher.Constraint("DistanceY", 2, 2, -1, 1, 34.05),
    Sketcher.Constraint("DistanceX", 3, 2, 3, 1, 27.346051),
    Sketcher.Constraint("DistanceX", 7, 2, 12, 2, 70.2698),
    Sketcher.Constraint("DistanceY", 1, 2, 1, 1, 43.397006),
    Sketcher.Constraint("DistanceX", 0, 2, -1, 1, 60.372351),
    Sketcher.Constraint("DistanceX", 4, 2, -1, 1, 44.335369),
])
pocket6 = doc.addObject("PartDesign::Pocket", "Pocket005")
body.addObject(pocket6)
pocket6.Profile = sketch8
pocket6.Type = "ThroughAll"

doc.recompute()
